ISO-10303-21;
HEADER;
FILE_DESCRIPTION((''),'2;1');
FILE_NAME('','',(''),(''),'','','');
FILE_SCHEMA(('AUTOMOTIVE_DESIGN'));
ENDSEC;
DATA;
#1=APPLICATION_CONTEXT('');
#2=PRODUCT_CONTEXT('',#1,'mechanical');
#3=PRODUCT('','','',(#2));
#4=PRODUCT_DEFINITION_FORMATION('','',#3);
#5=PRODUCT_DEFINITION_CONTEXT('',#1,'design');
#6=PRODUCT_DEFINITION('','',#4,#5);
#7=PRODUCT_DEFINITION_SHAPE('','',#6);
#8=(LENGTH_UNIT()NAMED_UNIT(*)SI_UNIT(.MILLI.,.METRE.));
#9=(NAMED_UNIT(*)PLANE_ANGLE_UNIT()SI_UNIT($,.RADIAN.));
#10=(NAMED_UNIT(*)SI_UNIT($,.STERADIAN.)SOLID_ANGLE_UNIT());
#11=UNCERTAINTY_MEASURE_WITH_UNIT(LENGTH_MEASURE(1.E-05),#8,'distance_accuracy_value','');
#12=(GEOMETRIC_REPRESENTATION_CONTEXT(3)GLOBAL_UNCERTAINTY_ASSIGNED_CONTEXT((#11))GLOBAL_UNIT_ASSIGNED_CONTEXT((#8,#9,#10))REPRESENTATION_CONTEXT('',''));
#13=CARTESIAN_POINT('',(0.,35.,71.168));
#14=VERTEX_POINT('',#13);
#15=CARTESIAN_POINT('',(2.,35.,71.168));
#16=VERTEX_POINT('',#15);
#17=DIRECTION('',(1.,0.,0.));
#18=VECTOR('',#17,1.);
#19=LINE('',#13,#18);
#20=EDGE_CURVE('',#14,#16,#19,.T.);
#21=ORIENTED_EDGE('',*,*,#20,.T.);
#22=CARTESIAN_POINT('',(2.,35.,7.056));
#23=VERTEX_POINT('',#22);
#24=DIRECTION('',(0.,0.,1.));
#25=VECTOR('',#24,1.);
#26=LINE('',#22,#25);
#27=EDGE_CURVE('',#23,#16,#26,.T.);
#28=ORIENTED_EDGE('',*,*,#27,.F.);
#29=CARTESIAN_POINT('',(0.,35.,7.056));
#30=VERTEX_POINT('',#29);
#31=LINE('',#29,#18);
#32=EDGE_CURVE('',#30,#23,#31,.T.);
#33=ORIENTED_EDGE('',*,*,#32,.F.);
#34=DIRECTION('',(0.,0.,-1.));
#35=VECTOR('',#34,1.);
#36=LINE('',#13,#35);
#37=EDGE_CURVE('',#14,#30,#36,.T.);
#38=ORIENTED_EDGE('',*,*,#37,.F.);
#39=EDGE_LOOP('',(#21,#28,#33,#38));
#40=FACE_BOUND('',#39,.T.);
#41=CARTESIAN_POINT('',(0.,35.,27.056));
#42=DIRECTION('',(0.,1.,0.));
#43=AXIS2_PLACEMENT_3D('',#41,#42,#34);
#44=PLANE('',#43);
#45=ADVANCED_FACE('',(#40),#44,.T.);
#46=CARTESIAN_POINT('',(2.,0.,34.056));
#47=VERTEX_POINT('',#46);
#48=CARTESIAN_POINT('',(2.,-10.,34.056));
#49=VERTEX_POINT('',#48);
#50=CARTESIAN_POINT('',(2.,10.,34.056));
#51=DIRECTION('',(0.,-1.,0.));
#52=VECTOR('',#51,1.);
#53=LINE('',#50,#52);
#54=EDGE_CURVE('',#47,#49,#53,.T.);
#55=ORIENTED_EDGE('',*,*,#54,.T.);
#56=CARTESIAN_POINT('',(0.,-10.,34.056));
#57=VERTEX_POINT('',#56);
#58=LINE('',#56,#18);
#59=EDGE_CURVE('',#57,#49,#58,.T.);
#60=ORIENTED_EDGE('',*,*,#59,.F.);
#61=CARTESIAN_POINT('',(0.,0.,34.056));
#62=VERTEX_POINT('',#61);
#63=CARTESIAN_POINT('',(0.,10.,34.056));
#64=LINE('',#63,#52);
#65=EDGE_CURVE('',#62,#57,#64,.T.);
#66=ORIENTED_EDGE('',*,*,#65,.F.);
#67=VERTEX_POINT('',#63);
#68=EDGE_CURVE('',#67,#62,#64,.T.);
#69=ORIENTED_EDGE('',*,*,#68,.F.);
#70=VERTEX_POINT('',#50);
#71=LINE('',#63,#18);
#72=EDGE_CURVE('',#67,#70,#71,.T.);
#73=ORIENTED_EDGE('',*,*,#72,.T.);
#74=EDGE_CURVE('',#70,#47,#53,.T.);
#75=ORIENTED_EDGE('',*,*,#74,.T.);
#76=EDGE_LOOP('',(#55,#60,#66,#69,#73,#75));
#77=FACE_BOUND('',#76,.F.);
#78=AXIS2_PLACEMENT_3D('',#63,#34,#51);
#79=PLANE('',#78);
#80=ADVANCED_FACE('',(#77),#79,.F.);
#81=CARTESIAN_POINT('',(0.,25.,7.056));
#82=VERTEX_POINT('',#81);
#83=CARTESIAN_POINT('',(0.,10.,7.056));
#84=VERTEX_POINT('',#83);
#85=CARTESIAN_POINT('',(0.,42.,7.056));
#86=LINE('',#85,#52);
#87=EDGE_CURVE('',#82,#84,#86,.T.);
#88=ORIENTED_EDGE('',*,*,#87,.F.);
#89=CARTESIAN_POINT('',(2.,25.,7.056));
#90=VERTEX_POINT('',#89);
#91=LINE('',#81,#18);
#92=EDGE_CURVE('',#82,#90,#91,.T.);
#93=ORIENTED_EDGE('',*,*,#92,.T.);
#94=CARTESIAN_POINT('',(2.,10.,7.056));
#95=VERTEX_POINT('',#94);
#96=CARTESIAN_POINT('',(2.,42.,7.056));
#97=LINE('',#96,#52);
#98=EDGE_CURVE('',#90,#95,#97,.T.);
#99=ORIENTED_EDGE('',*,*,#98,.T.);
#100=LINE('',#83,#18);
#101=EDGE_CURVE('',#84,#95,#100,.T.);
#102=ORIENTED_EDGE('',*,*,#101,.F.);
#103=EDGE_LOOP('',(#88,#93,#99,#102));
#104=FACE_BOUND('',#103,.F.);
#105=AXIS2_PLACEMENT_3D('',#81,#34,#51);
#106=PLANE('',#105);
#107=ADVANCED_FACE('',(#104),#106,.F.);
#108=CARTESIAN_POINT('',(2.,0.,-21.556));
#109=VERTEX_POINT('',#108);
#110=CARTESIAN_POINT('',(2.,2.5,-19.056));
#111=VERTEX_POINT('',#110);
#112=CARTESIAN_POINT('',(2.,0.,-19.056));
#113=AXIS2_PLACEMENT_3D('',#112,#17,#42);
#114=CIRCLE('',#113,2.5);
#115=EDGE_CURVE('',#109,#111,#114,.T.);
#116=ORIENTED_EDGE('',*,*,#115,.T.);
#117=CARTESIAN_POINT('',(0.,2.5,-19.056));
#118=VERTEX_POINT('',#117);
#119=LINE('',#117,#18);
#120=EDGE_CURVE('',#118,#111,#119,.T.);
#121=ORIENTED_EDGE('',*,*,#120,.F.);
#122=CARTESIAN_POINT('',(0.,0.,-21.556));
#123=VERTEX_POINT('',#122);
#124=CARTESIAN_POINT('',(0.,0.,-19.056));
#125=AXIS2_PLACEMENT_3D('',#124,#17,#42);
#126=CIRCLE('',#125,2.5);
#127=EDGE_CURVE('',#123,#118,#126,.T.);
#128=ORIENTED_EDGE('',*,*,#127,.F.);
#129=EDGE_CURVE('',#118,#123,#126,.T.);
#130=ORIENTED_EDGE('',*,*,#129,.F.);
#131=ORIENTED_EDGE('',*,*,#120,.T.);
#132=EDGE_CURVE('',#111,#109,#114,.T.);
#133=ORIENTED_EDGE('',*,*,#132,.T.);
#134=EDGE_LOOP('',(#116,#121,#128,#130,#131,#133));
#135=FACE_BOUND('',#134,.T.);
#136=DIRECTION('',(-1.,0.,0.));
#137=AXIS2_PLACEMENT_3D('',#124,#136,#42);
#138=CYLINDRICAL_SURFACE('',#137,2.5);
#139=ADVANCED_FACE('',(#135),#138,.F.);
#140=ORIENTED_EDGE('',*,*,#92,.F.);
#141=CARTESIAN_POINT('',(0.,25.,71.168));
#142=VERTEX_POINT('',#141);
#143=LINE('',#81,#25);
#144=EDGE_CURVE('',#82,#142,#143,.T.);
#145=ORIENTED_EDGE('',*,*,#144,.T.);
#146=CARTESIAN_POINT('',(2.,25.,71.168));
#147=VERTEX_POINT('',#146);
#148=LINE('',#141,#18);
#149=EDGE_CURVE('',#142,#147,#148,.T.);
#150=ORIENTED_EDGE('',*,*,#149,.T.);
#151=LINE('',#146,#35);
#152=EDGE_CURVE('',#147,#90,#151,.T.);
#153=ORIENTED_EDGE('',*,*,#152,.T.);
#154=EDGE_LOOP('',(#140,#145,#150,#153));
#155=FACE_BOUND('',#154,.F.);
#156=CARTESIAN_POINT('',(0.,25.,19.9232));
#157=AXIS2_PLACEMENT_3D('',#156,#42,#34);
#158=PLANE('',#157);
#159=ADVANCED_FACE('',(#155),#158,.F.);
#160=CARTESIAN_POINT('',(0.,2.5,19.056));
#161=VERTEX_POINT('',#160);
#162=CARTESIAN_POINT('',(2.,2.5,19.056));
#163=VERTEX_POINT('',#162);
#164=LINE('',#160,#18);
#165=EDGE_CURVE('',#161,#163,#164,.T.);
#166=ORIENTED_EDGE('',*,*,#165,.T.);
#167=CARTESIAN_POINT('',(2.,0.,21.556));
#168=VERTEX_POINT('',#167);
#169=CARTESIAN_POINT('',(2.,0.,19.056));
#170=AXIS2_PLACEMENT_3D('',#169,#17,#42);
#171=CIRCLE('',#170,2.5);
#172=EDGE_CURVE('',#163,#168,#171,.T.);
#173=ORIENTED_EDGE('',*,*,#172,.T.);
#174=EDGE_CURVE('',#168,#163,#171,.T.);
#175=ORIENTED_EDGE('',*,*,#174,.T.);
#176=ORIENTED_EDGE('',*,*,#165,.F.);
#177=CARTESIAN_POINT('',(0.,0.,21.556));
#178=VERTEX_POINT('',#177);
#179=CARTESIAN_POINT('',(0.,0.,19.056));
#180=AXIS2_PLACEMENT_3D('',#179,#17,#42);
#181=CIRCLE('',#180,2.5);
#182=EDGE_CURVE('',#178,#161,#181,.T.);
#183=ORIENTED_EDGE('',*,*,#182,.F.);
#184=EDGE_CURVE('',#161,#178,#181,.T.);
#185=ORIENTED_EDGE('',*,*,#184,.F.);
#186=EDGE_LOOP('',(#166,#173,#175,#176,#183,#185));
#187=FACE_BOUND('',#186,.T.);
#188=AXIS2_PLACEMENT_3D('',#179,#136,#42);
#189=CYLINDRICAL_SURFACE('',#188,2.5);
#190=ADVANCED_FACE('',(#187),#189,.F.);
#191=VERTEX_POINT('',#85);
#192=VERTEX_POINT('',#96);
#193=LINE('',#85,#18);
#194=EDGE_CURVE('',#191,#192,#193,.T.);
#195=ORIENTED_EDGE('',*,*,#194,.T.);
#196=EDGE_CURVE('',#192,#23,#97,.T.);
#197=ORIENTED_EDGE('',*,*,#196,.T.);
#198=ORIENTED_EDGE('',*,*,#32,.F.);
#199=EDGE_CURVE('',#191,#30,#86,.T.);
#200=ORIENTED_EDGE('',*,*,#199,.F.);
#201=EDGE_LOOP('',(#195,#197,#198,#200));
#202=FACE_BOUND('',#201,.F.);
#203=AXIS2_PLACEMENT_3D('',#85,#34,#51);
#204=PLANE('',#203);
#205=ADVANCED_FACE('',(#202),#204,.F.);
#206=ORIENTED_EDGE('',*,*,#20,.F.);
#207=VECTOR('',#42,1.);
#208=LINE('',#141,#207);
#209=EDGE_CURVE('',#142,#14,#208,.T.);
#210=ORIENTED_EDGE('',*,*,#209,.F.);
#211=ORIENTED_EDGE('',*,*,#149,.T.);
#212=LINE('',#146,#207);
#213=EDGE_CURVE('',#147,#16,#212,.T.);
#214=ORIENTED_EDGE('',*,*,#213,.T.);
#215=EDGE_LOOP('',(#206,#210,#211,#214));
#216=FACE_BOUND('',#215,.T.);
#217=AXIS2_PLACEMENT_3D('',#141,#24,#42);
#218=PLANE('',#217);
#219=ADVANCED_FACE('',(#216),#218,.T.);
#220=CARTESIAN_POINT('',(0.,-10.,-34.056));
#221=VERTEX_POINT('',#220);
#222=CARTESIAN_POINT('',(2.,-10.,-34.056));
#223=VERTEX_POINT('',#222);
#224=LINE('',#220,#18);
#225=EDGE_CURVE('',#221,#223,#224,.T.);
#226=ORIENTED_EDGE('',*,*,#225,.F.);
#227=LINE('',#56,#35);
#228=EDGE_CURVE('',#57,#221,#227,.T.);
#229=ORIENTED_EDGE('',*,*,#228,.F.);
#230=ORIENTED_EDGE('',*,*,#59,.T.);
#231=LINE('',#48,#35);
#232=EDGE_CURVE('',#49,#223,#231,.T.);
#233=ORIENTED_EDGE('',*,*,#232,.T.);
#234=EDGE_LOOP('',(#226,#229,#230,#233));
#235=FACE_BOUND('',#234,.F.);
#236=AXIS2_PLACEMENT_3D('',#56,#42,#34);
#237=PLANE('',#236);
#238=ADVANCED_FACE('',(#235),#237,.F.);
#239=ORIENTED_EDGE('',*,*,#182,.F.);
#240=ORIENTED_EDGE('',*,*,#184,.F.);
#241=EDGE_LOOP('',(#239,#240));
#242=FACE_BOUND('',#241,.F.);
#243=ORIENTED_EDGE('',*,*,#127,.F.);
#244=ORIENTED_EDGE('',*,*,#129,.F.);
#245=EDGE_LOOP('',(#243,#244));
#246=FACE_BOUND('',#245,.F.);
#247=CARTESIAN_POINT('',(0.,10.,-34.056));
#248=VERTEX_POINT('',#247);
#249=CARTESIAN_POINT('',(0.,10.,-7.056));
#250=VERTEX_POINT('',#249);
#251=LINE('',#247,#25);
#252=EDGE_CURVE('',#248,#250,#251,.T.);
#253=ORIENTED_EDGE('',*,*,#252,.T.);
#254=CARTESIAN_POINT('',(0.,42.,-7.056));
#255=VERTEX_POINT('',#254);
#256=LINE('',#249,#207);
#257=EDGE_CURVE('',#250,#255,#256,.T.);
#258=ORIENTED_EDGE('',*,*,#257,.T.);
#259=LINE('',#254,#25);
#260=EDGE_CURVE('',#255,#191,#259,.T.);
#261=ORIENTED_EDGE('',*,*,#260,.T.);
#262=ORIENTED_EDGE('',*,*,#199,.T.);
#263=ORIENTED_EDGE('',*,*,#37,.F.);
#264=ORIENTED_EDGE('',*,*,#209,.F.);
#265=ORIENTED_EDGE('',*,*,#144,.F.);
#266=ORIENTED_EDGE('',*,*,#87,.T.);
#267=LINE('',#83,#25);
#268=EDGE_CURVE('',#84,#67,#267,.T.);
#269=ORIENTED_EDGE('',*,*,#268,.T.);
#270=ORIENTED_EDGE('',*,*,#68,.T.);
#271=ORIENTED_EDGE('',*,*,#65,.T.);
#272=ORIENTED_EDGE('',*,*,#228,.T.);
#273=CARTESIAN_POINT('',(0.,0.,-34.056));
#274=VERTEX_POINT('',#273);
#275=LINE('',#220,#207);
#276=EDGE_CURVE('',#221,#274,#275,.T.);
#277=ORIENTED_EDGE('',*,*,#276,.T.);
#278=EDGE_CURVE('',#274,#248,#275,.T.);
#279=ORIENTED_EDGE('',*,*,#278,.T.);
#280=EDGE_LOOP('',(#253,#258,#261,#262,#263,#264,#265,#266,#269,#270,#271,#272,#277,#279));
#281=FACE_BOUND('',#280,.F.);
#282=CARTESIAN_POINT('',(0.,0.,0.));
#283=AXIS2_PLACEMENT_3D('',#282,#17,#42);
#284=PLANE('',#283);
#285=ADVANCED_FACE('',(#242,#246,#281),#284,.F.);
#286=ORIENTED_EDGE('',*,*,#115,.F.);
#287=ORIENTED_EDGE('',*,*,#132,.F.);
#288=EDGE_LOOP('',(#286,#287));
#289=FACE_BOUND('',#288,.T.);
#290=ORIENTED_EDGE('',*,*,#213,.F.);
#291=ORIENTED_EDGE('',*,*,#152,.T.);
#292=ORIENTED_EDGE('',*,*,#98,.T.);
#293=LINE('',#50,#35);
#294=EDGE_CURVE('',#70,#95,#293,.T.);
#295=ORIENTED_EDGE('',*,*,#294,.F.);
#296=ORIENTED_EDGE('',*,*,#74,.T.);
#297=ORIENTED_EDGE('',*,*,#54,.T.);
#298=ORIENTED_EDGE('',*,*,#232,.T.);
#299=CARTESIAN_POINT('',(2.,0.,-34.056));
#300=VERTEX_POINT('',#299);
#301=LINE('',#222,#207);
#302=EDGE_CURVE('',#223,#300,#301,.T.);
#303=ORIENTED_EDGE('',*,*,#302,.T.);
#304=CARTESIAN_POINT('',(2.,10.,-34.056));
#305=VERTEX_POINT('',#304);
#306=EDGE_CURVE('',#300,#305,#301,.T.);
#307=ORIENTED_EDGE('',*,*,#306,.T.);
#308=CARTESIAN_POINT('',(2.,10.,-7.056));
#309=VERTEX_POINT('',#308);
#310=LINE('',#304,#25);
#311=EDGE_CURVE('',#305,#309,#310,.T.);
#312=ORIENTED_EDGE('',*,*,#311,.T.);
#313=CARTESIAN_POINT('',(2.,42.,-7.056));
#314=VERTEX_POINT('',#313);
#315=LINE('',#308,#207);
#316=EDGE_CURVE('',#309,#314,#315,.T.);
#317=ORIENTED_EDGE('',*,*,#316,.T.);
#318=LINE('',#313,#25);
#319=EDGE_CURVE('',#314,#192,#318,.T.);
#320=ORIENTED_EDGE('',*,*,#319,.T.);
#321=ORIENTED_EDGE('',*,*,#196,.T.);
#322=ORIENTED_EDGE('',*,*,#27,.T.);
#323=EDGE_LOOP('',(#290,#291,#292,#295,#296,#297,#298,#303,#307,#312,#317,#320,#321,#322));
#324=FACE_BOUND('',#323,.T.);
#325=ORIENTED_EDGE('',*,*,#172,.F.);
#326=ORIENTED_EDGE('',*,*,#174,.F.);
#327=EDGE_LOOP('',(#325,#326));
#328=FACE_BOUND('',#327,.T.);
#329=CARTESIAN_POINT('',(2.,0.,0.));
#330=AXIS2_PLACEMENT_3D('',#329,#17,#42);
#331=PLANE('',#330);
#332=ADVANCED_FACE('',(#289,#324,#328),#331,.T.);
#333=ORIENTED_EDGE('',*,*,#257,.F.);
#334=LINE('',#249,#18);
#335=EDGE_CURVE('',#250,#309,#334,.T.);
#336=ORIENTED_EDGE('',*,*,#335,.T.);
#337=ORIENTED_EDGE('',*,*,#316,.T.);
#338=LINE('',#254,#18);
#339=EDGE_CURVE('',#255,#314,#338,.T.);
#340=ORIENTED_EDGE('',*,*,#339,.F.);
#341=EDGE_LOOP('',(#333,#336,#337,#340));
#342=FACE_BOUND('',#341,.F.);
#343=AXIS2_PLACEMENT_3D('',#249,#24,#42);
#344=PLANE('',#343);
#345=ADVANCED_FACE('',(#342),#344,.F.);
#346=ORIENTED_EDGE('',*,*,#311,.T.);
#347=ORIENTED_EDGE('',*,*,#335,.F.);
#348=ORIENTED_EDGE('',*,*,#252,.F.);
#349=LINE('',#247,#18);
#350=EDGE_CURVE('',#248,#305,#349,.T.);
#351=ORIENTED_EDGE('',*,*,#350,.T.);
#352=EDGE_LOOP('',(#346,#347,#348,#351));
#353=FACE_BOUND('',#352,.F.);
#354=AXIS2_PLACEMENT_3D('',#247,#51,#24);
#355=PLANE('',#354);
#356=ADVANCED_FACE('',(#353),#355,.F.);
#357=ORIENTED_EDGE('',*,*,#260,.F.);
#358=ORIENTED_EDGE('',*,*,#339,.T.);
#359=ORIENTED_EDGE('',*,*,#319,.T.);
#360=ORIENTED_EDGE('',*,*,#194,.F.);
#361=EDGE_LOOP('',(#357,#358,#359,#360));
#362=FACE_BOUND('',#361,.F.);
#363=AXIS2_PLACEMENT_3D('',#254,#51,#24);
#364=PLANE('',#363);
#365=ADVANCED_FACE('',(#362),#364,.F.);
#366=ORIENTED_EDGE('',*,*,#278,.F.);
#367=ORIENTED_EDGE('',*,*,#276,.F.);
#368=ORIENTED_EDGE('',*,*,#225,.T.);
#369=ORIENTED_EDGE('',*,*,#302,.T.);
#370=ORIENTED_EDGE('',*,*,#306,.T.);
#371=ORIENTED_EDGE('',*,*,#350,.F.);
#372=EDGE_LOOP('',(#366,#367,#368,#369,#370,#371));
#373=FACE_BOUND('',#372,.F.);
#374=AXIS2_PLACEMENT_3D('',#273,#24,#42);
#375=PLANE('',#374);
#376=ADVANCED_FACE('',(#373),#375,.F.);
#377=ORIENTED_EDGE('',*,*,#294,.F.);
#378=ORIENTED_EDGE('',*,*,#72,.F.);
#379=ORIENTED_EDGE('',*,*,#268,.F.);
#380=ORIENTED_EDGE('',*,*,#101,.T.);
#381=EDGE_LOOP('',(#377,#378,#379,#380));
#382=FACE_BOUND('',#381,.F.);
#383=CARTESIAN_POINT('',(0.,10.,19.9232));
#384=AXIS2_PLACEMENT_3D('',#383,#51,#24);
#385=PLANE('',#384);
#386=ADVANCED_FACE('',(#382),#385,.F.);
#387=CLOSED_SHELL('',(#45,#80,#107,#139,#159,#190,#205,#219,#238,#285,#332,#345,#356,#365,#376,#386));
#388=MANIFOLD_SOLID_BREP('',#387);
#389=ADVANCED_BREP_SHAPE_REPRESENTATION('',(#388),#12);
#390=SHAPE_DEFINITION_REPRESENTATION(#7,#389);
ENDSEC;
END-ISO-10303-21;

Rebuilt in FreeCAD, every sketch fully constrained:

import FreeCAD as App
import Part
import Sketcher
Q = App.Units.Quantity


def add_polygon(sketch, points):
    """Adds a closed chain of lines whose ends are joined by coincident constraints."""
    first, n = sketch.GeometryCount, len(points)
    for a, b in zip(points, points[1:] + points[:1]):
        sketch.addGeometry(Part.LineSegment(App.Vector(*a, 0), App.Vector(*b, 0)), False)
    for i in range(n):
        sketch.addConstraint(Sketcher.Constraint("Coincident", first + i, 2, first + (i + 1) % n, 1))

doc = App.newDocument("Part")
body = doc.addObject("PartDesign::Body", "Body")

# Sketch on YZ plane
sketch1 = body.newObject("Sketcher::SketchObject", "Sketch")
sketch1.AttachmentSupport = (doc.getObject("YZ_Plane"), [""])
sketch1.MapMode = "FlatFace"
add_polygon(sketch1, [(10, 34.1), (0, 34.1), (-10, 34.1), (-10, -34.1), (0, -34.1), (10, -34.1), (10, -7.1), (42, -7.1), (42, 7.1), (35, 7.1), (35, 71.2), (25, 71.2), (25, 7.1), (10, 7.1)])  # lines 0-13
sketch1.addGeometry(Part.Circle(App.Vector(0, -19.1, 0), App.Vector(0, 0, 1), 2.5), False)  # 14
sketch1.addGeometry(Part.Circle(App.Vector(0, 19.1, 0), App.Vector(0, 0, 1), 2.5), False)  # 15
sketch1.addConstraint([
    Sketcher.Constraint("Horizontal", 0),
    Sketcher.Constraint("Horizontal", 1),
    Sketcher.Constraint("Vertical", 2),
    Sketcher.Constraint("Horizontal", 3),
    Sketcher.Constraint("Horizontal", 4),
    Sketcher.Constraint("Vertical", 5),
    Sketcher.Constraint("Horizontal", 6),
    Sketcher.Constraint("Vertical", 7),
    Sketcher.Constraint("Horizontal", 8),
    Sketcher.Constraint("Vertical", 9),
    Sketcher.Constraint("Horizontal", 10),
    Sketcher.Constraint("Vertical", 11),
    Sketcher.Constraint("Horizontal", 12),
    Sketcher.Constraint("Vertical", 13),
    Sketcher.Constraint("Equal", 14, 15),
    Sketcher.Constraint("Symmetric", 14, 3, 15, 3, -1, 1),
    Sketcher.Constraint("Symmetric", 0, 2, 3, 2, -1, 1),
    Sketcher.Constraint("Symmetric", 5, 2, 12, 2, -1),
    Sketcher.Constraint("PointOnObject", 14, 3, -2),
    Sketcher.Constraint("PointOnObject", 0, 2, -2),
    Sketcher.Constraint("Horizontal", 8, 2, 11, 2),
    Sketcher.Constraint("Equal", 0, 1),
    Sketcher.Constraint("Equal", 4, 10),
    Sketcher.Constraint("Diameter", 14, Q("5 mm")),
    Sketcher.Constraint("DistanceX", 0, 2, 0, 1, Q("10 mm")),
    Sketcher.Constraint("DistanceX", 6, 1, 6, 2, Q("32 mm")),
    Sketcher.Constraint("DistanceX", 12, 2, 12, 1, Q("15 mm")),
    Sketcher.Constraint("DistanceY", 15, 3, 0, 2, Q("15 mm")),
    Sketcher.Constraint("DistanceY", 2, 2, 2, 1, Q("68.112 mm")),
    Sketcher.Constraint("DistanceY", 5, 1, 5, 2, Q("27 mm")),
    Sketcher.Constraint("DistanceY", 9, 1, 9, 2, Q("64.112 mm")),
])
pad1 = body.newObject("PartDesign::Pad", "Pad")
pad1.Profile = sketch1
pad1.Length = 2

doc.recompute()
